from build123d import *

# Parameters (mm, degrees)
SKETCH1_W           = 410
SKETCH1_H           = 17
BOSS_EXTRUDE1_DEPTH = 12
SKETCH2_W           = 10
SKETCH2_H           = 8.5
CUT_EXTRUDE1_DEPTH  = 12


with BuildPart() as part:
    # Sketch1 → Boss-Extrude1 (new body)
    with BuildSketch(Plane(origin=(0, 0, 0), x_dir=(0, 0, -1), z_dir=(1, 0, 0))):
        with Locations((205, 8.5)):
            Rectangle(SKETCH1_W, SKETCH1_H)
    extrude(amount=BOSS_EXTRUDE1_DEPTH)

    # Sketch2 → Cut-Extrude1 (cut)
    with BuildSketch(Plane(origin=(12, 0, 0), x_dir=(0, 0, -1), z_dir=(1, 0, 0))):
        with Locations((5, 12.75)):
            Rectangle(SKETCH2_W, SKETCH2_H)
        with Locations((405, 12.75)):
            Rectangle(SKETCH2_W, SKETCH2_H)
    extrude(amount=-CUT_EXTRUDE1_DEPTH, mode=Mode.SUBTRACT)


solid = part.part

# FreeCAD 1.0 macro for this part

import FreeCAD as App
import Part
import Sketcher
from FreeCAD import Vector

doc = App.newDocument("Part")
body = doc.addObject("PartDesign::Body", "Body")

# Sketch on YZ plane
sketch1 = doc.addObject("Sketcher::SketchObject", "Sketch")
body.addObject(sketch1)
sketch1.AttachmentSupport = (doc.YZ_Plane, [""])
sketch1.MapMode = "FlatFace"
sketch1.addGeometry(Part.LineSegment(Vector(17, 0, 0), Vector(0, 0, 0)), False)
sketch1.addGeometry(Part.LineSegment(Vector(0, 0, 0), Vector(0, -410, 0)), False)
sketch1.addGeometry(Part.LineSegment(Vector(0, -410, 0), Vector(17, -410, 0)), False)
sketch1.addGeometry(Part.LineSegment(Vector(17, -410, 0), Vector(17, 0, 0)), False)
sketch1.addConstraint(Sketcher.Constraint("Coincident", 0, 2, 1, 1))
sketch1.addConstraint(Sketcher.Constraint("Coincident", 1, 2, 2, 1))
sketch1.addConstraint(Sketcher.Constraint("Coincident", 2, 2, 3, 1))
sketch1.addConstraint(Sketcher.Constraint("Coincident", 3, 2, 0, 1))
sketch1.addConstraint(Sketcher.Constraint("Horizontal", 0))
sketch1.addConstraint(Sketcher.Constraint("Vertical", 1))
sketch1.addConstraint(Sketcher.Constraint("Horizontal", 2))
sketch1.addConstraint(Sketcher.Constraint("Vertical", 3))
sketch1.addConstraint(Sketcher.Constraint("Coincident", 0, 2, -1, 1))
sketch1.addConstraint(Sketcher.Constraint("DistanceX", 0, 2, 0, 1, 17.0))
sketch1.addConstraint(Sketcher.Constraint("DistanceY", 1, 2, 1, 1, 410.0))
pad1 = doc.addObject("PartDesign::Pad", "Pad")
body.addObject(pad1)
pad1.Profile = sketch1
pad1.Length = 12

# Sketch on YZ plane
sketch2 = doc.addObject("Sketcher::SketchObject", "Sketch001")
body.addObject(sketch2)
sketch2.AttachmentSupport = (doc.YZ_Plane, [""])
sketch2.MapMode = "FlatFace"
sketch2.AttachmentOffset = App.Placement(Vector(0, 0, 12), App.Rotation())
sketch2.addGeometry(Part.LineSegment(Vector(17, 0, 0), Vector(8, 0, 0)), False)
sketch2.addGeometry(Part.LineSegment(Vector(8, 0, 0), Vector(8, -10, 0)), False)
sketch2.addGeometry(Part.LineSegment(Vector(8, -10, 0), Vector(17, -10, 0)), False)
sketch2.addGeometry(Part.LineSegment(Vector(17, -10, 0), Vector(17, 0, 0)), False)
sketch2.addGeometry(Part.LineSegment(Vector(17, -400, 0), Vector(8, -400, 0)), False)
sketch2.addGeometry(Part.LineSegment(Vector(8, -400, 0), Vector(8, -410, 0)), False)
sketch2.addGeometry(Part.LineSegment(Vector(8, -410, 0), Vector(17, -410, 0)), False)
sketch2.addGeometry(Part.LineSegment(Vector(17, -410, 0), Vector(17, -400, 0)), False)
sketch2.addConstraint(Sketcher.Constraint("Coincident", 0, 2, 1, 1))
sketch2.addConstraint(Sketcher.Constraint("Coincident", 1, 2, 2, 1))
sketch2.addConstraint(Sketcher.Constraint("Coincident", 2, 2, 3, 1))
sketch2.addConstraint(Sketcher.Constraint("Coincident", 3, 2, 0, 1))
sketch2.addConstraint(Sketcher.Constraint("Coincident", 4, 2, 5, 1))
sketch2.addConstraint(Sketcher.Constraint("Coincident", 5, 2, 6, 1))
sketch2.addConstraint(Sketcher.Constraint("Coincident", 6, 2, 7, 1))
sketch2.addConstraint(Sketcher.Constraint("Coincident", 7, 2, 4, 1))
sketch2.addConstraint(Sketcher.Constraint("Horizontal", 0))
sketch2.addConstraint(Sketcher.Constraint("Vertical", 1))
sketch2.addConstraint(Sketcher.Constraint("Horizontal", 2))
sketch2.addConstraint(Sketcher.Constraint("Vertical", 3))
sketch2.addConstraint(Sketcher.Constraint("Horizontal", 4))
sketch2.addConstraint(Sketcher.Constraint("Vertical", 5))
sketch2.addConstraint(Sketcher.Constraint("Horizontal", 6))
sketch2.addConstraint(Sketcher.Constraint("Vertical", 7))
sketch2.addConstraint(Sketcher.Constraint("PointOnObject", 0, 2, -1))
sketch2.addConstraint(Sketcher.Constraint("Vertical", 1, 2, 4, 2))
sketch2.addConstraint(Sketcher.Constraint("Vertical", 3, 2, 6, 2))
sketch2.addConstraint(Sketcher.Constraint("Equal", 3, 5))
sketch2.addConstraint(Sketcher.Constraint("DistanceY", 1, 2, 1, 1, 10.0))
sketch2.addConstraint(Sketcher.Constraint("DistanceX", 0, 2, 0, 1, 8.5))
sketch2.addConstraint(Sketcher.Constraint("DistanceX", -1, 1, 2, 2, 17.0))
sketch2.addConstraint(Sketcher.Constraint("DistanceY", 4, 2, -1, 1, 400.0))
pocket1 = doc.addObject("PartDesign::Pocket", "Pocket")
body.addObject(pocket1)
pocket1.Profile = sketch2
pocket1.Length = 12

doc.recompute()
